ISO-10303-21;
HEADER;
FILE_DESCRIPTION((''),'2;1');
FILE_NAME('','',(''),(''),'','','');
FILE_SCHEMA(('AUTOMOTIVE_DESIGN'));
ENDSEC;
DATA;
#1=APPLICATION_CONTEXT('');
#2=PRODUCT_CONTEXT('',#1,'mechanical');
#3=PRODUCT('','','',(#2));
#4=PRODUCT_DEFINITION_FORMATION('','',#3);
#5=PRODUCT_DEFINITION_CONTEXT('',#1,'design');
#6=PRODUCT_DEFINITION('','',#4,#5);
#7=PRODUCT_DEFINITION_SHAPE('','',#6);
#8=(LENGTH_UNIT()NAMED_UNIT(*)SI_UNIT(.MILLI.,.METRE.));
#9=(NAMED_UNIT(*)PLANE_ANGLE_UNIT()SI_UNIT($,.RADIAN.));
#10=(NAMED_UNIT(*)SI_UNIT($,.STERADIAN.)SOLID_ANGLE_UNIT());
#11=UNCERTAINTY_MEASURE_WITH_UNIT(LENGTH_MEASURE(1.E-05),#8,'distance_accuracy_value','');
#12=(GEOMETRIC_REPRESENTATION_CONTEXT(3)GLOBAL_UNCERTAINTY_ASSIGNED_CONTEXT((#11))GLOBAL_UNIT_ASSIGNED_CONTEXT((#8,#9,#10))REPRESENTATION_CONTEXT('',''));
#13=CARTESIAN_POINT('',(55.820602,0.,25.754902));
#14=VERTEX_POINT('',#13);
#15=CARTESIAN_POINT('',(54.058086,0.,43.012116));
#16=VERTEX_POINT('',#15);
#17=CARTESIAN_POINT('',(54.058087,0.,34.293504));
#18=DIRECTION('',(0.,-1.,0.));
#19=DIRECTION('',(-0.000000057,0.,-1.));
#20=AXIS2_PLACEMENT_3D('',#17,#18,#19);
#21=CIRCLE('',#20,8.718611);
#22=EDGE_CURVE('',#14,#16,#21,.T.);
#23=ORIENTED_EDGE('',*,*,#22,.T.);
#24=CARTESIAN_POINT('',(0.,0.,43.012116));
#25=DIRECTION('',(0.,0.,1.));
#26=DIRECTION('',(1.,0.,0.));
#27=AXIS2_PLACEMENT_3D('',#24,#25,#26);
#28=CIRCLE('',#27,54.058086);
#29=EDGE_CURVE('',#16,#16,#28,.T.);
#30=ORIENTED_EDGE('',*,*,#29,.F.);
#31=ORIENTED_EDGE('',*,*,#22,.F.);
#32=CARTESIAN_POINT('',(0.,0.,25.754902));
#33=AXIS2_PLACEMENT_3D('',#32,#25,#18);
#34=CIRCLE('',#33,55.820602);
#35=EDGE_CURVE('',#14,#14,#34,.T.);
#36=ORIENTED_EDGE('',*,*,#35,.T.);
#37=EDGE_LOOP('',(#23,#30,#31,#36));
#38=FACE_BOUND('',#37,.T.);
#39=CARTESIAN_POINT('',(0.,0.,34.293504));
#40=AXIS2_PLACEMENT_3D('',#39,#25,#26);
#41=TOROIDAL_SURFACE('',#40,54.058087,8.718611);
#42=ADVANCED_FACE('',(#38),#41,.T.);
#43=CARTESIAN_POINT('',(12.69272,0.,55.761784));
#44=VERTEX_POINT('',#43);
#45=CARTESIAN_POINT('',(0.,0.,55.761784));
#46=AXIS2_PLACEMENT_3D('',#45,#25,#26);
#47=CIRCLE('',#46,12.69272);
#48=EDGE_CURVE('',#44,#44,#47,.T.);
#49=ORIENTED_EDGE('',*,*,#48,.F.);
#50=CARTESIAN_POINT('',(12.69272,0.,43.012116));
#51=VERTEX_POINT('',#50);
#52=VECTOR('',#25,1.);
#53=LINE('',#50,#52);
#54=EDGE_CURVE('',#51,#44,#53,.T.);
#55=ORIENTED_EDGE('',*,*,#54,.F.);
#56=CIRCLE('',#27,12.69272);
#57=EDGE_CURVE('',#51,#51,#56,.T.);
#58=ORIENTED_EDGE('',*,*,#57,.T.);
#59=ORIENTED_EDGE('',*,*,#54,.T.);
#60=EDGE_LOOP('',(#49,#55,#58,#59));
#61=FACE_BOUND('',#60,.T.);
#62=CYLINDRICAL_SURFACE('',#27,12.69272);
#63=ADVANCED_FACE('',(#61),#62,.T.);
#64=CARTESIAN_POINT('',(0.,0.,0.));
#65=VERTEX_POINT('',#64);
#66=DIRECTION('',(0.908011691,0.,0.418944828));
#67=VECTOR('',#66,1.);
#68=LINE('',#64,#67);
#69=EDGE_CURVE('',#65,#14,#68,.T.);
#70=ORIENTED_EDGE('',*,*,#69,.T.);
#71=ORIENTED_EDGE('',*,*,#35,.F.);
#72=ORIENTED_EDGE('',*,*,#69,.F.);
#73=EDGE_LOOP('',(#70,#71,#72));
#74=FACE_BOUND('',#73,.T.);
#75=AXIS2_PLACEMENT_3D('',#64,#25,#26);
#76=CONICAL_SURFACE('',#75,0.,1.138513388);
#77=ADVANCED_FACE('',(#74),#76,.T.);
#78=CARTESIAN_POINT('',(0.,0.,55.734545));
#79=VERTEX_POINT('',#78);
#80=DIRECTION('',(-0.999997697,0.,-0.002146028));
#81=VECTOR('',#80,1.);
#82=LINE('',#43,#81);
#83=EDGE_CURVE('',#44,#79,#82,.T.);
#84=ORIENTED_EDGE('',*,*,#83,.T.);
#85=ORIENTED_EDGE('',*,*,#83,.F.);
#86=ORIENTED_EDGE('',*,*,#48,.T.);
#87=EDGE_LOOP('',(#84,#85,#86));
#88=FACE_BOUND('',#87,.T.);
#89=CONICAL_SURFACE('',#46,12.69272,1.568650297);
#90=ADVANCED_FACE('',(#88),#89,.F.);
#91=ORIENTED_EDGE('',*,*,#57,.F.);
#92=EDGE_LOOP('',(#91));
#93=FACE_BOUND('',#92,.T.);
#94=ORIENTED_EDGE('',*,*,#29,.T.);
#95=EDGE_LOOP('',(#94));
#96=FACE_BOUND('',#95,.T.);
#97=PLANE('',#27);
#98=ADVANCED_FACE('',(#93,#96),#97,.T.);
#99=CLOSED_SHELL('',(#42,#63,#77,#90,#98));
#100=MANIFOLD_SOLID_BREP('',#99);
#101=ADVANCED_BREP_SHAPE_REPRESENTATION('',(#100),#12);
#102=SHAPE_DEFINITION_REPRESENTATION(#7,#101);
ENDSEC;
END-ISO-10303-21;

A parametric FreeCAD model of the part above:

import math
import FreeCAD as App
import Part
import Sketcher

doc = App.newDocument("Part")
body = doc.addObject("PartDesign::Body", "Body")

# Sketch on XZ plane
sketch1 = body.newObject("Sketcher::SketchObject", "Sketch")
sketch1.AttachmentSupport = (doc.getObject("XZ_Plane"), [""])
sketch1.MapMode = "FlatFace"
sketch1.addGeometry([
    Part.LineSegment(App.Vector(0, 56, 0), App.Vector(0, 26, 0)),  # 0
    Part.LineSegment(App.Vector(0, 26, 0), App.Vector(54, 26, 0)),  # 1
    Part.ArcOfCircle(Part.Circle(App.Vector(54, 34, 0), App.Vector(0, 0, 1), 9), math.radians(-90), math.radians(90)),  # 2
    Part.LineSegment(App.Vector(54, 43, 0), App.Vector(13, 43, 0)),  # 3
    Part.LineSegment(App.Vector(13, 43, 0), App.Vector(13, 56, 0)),  # 4
    Part.LineSegment(App.Vector(13, 56, 0), App.Vector(0, 56, 0)),  # 5
], False)
sketch1.addConstraint([
    Sketcher.Constraint("Coincident", 0, 2, 1, 1),
    Sketcher.Constraint("Tangent", 1, 2, 2, 1),
    Sketcher.Constraint("Tangent", 2, 2, 3, 1),
    Sketcher.Constraint("Coincident", 3, 2, 4, 1),
    Sketcher.Constraint("Coincident", 4, 2, 5, 1),
    Sketcher.Constraint("Coincident", 5, 2, 0, 1),
    Sketcher.Constraint("Vertical", 0),
    Sketcher.Constraint("Horizontal", 1),
    Sketcher.Constraint("Horizontal", 3),
    Sketcher.Constraint("Vertical", 4),
    Sketcher.Constraint("PointOnObject", 0, 2, -2),
    Sketcher.Constraint("Radius", 2, 8.718611),
    Sketcher.Constraint("DistanceY", 0, 2, 0, 1, 30.159652),
    Sketcher.Constraint("Distance", 5, 12.692749),
    Sketcher.Constraint("DistanceX", 1, 1, 1, 2, 54.058086),
    Sketcher.Constraint("DistanceY", 4, 1, 4, 2, 12.749668),
    Sketcher.Constraint("DistanceY", -1, 1, 2, 3, 34.293504),
])
revolution = body.newObject("PartDesign::Revolution", "Revolution")
revolution.Profile = sketch1
revolution.ReferenceAxis = (sketch1, ["V_Axis"])
revolution.Angle = 360

# Sketch on XZ plane
sketch2 = body.newObject("Sketcher::SketchObject", "Sketch001")
sketch2.AttachmentSupport = (doc.getObject("XZ_Plane"), [""])
sketch2.MapMode = "FlatFace"
sketch2.addGeometry([
    Part.LineSegment(App.Vector(0, 26, 0), App.Vector(0, 0, 0)),
    Part.LineSegment(App.Vector(0, 0, 0), App.Vector(57, 26, 0)),
    Part.LineSegment(App.Vector(57, 26, 0), App.Vector(0, 26, 0)),
], False)
sketch2.addConstraint([
    Sketcher.Constraint("Coincident", 0, 2, 1, 1),
    Sketcher.Constraint("Coincident", 1, 2, 2, 1),
    Sketcher.Constraint("Coincident", 2, 2, 0, 1),
    Sketcher.Constraint("Vertical", 0),
    Sketcher.Constraint("Coincident", 0, 2, -1, 1),
    Sketcher.Constraint("DistanceY", 0, 2, 0, 1, 25.660992),
    Sketcher.Constraint("DistanceY", -1, 1, 1, 2, 26.319558),
    Sketcher.Constraint("Distance", 1, 62.823447),
])
revolution2 = body.newObject("PartDesign::Revolution", "Revolution001")
revolution2.Profile = sketch2
revolution2.ReferenceAxis = (sketch2, ["V_Axis"])
revolution2.Angle = 360

doc.recompute()
